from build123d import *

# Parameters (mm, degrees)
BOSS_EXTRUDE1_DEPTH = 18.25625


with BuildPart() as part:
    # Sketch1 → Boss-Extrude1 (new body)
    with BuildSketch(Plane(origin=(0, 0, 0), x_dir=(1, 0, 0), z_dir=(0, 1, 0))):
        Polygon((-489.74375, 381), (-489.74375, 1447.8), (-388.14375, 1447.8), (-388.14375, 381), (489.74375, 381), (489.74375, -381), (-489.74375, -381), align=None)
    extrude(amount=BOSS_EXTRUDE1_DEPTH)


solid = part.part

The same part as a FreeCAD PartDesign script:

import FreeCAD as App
import Part
import Sketcher
from FreeCAD import Vector
Q = App.Units.Quantity


def add_polygon(sketch, points):
    """Adds a closed chain of lines whose ends are joined by coincident constraints."""
    first, n = sketch.GeometryCount, len(points)
    for a, b in zip(points, points[1:] + points[:1]):
        sketch.addGeometry(Part.LineSegment(App.Vector(*a, 0), App.Vector(*b, 0)), False)
    for i in range(n):
        sketch.addConstraint(Sketcher.Constraint("Coincident", first + i, 2, first + (i + 1) % n, 1))

doc = App.newDocument("Part")
body = doc.addObject("PartDesign::Body", "Body")

# Sketch on XZ plane
sketch1 = doc.addObject("Sketcher::SketchObject", "Sketch")
body.addObject(sketch1)
sketch1.AttachmentSupport = (doc.XZ_Plane, [""])
sketch1.MapMode = "FlatFace"
add_polygon(sketch1, [(-490, -1448), (-490, 381), (490, 381), (490, -381), (-388, -381), (-388, -1448)])  # lines 0-5
sketch1.addConstraint(Sketcher.Constraint("Vertical", 0))
sketch1.addConstraint(Sketcher.Constraint("Horizontal", 1))
sketch1.addConstraint(Sketcher.Constraint("Vertical", 2))
sketch1.addConstraint(Sketcher.Constraint("Horizontal", 3))
sketch1.addConstraint(Sketcher.Constraint("Vertical", 4))
sketch1.addConstraint(Sketcher.Constraint("Horizontal", 5))
sketch1.addConstraint(Sketcher.Constraint("Symmetric", 0, 2, 2, 2, -1, 1))
sketch1.addConstraint(Sketcher.Constraint("DistanceX", 5, 2, 5, 1, Q("4 in")))
sketch1.addConstraint(Sketcher.Constraint("DistanceY", 0, 1, 0, 2, Q("72 in")))
sketch1.addConstraint(Sketcher.Constraint("DistanceY", 2, 2, 2, 1, Q("30 in")))
sketch1.addConstraint(Sketcher.Constraint("DistanceX", 1, 1, 1, 2, Q("38.5625 in")))
pad1 = doc.addObject("PartDesign::Pad", "Pad")
body.addObject(pad1)
pad1.Profile = sketch1
pad1.Length = Q("0.71875 in")
pad1.Reversed = True

doc.recompute()
